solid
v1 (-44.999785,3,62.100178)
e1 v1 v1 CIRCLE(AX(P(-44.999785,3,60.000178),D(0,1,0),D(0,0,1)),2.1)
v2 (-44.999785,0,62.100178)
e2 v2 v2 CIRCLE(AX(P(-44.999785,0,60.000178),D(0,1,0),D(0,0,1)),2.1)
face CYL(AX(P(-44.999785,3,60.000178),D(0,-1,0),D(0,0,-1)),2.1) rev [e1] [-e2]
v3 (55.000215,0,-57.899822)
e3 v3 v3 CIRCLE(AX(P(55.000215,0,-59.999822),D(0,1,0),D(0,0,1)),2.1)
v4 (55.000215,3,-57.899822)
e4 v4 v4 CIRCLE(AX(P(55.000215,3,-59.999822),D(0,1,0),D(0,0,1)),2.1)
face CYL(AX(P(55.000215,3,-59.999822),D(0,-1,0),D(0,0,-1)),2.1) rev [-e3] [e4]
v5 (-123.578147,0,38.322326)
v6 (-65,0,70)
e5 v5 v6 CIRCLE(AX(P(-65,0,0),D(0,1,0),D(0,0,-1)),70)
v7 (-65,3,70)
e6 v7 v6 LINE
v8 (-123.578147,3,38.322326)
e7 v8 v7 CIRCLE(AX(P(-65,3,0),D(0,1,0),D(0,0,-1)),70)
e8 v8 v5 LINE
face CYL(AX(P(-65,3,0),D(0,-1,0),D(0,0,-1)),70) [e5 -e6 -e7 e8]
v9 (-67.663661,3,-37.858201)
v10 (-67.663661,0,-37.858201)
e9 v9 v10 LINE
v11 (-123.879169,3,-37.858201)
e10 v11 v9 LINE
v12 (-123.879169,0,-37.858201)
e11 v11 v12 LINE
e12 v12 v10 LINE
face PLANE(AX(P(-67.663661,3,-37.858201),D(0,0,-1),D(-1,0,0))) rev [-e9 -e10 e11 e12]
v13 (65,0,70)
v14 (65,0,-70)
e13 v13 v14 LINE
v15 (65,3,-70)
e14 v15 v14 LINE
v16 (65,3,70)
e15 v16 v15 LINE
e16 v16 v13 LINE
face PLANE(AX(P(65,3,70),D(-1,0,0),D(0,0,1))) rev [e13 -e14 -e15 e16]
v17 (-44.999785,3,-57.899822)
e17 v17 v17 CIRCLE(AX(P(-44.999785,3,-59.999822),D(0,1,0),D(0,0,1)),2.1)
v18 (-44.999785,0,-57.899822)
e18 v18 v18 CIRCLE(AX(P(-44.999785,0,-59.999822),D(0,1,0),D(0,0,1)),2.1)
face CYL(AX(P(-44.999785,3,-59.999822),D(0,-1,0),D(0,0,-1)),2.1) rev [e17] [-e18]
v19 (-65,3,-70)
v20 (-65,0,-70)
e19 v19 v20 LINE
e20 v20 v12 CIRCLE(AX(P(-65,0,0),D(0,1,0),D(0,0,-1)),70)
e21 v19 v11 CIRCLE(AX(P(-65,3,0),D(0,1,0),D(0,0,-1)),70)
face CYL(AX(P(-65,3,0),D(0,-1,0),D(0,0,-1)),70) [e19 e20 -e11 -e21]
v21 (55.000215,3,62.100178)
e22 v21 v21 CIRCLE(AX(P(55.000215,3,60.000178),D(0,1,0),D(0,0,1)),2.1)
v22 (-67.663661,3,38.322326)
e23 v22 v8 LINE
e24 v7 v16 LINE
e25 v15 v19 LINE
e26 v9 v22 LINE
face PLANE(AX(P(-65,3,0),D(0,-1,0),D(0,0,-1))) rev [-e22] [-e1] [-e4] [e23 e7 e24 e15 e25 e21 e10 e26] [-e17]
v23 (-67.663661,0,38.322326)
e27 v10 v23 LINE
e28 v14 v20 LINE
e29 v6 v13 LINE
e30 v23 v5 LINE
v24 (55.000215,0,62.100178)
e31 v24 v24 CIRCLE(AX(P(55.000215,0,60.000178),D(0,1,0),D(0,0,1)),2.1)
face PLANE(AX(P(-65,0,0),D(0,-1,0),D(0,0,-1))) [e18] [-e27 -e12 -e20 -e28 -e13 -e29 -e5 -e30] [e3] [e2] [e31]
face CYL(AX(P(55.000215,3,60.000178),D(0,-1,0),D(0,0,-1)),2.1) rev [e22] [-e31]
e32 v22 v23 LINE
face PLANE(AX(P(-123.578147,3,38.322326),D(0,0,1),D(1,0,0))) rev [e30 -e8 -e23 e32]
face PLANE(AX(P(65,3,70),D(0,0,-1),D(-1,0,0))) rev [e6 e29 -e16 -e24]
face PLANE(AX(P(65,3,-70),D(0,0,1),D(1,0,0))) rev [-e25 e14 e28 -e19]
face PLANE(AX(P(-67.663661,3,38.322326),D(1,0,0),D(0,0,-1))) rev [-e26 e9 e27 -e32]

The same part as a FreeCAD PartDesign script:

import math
import FreeCAD as App
import Part
import Sketcher
from FreeCAD import Vector
Q = App.Units.Quantity

doc = App.newDocument("Part")
body = doc.addObject("PartDesign::Body", "Body")

# Sketch on XZ plane
sketch1 = body.newObject("Sketcher::SketchObject", "Sketch")
sketch1.AttachmentSupport = (doc.getObject("XZ_Plane"), [""])
sketch1.MapMode = "FlatFace"
sketch1.addGeometry(Part.LineSegment(Vector(-65, 70, 0), Vector(65, 70, 0)), False)
sketch1.addGeometry(Part.LineSegment(Vector(65, 70, 0), Vector(65, -70, 0)), False)
sketch1.addGeometry(Part.LineSegment(Vector(65, -70, 0), Vector(-65, -70, 0)), False)
sketch1.addGeometry(Part.ArcOfCircle(Part.Circle(Vector(-65, 0, 0), Vector(0, 0, 1), 70), math.radians(-147), math.radians(-90)), False)
sketch1.addGeometry(Part.LineSegment(Vector(-123.9, -37.9, 0), Vector(-67.7, -37.9, 0)), False)
sketch1.addGeometry(Part.LineSegment(Vector(-67.7, -37.9, 0), Vector(-67.7, 38.3, 0)), False)
sketch1.addGeometry(Part.LineSegment(Vector(-67.7, 38.3, 0), Vector(-123.6, 38.3, 0)), False)
sketch1.addGeometry(Part.ArcOfCircle(Part.Circle(Vector(-65, 0, 0), Vector(0, 0, 1), 70), math.radians(90), math.radians(147)), False)
sketch1.addGeometry(Part.Circle(Vector(55, 60, 0), Vector(0, 0, 1), 2.1), False)
sketch1.addGeometry(Part.Circle(Vector(-45, 60, 0), Vector(0, 0, 1), 2.1), False)
sketch1.addGeometry(Part.Circle(Vector(55, -60, 0), Vector(0, 0, 1), 2.1), False)
sketch1.addGeometry(Part.Circle(Vector(-45, -60, 0), Vector(0, 0, 1), 2.1), False)
sketch1.addConstraint(Sketcher.Constraint("Coincident", 0, 2, 1, 1))
sketch1.addConstraint(Sketcher.Constraint("Coincident", 1, 2, 2, 1))
sketch1.addConstraint(Sketcher.Constraint("Tangent", 2, 2, 3, 2))
sketch1.addConstraint(Sketcher.Constraint("Coincident", 3, 1, 4, 1))
sketch1.addConstraint(Sketcher.Constraint("Coincident", 4, 2, 5, 1))
sketch1.addConstraint(Sketcher.Constraint("Coincident", 5, 2, 6, 1))
sketch1.addConstraint(Sketcher.Constraint("Coincident", 6, 2, 7, 2))
sketch1.addConstraint(Sketcher.Constraint("Tangent", 7, 1, 0, 1))
sketch1.addConstraint(Sketcher.Constraint("Horizontal", 0))
sketch1.addConstraint(Sketcher.Constraint("Vertical", 1))
sketch1.addConstraint(Sketcher.Constraint("Horizontal", 2))
sketch1.addConstraint(Sketcher.Constraint("Horizontal", 4))
sketch1.addConstraint(Sketcher.Constraint("Vertical", 5))
sketch1.addConstraint(Sketcher.Constraint("Horizontal", 6))
sketch1.addConstraint(Sketcher.Constraint("Coincident", 7, 3, 3, 3))
sketch1.addConstraint(Sketcher.Constraint("Equal", 3, 7))
sketch1.addConstraint(Sketcher.Constraint("Equal", 8, 9))
sketch1.addConstraint(Sketcher.Constraint("Equal", 9, 10))
sketch1.addConstraint(Sketcher.Constraint("Equal", 10, 11))
sketch1.addConstraint(Sketcher.Constraint("Symmetric", 0, 2, 2, 2, -1, 1))
sketch1.addConstraint(Sketcher.Constraint("Horizontal", 8, 3, 9, 3))
sketch1.addConstraint(Sketcher.Constraint("Horizontal", 10, 3, 11, 3))
sketch1.addConstraint(Sketcher.Constraint("Vertical", 8, 3, 10, 3))
sketch1.addConstraint(Sketcher.Constraint("Vertical", 9, 3, 11, 3))
sketch1.addConstraint(Sketcher.Constraint("Radius", 3, Q("70 mm")))
sketch1.addConstraint(Sketcher.Constraint("Diameter", 8, Q("4.2 mm")))
sketch1.addConstraint(Sketcher.Constraint("DistanceX", 0, 1, 0, 2, Q("130 mm")))
sketch1.addConstraint(Sketcher.Constraint("DistanceX", 9, 3, 8, 3, Q("100 mm")))
sketch1.addConstraint(Sketcher.Constraint("DistanceY", 10, 3, 8, 3, Q("120 mm")))
sketch1.addConstraint(Sketcher.Constraint("DistanceX", 4, 1, 4, 2, Q("56.215509 mm")))
sketch1.addConstraint(Sketcher.Constraint("DistanceY", 3, 1, -1, 1, Q("37.858201 mm")))
sketch1.addConstraint(Sketcher.Constraint("DistanceX", 6, 2, 6, 1, Q("55.914486 mm")))
sketch1.addConstraint(Sketcher.Constraint("DistanceY", 11, 3, 3, 1, Q("22.141621 mm")))
sketch1.addConstraint(Sketcher.Constraint("DistanceX", -1, 1, 8, 3, Q("55.000215 mm")))
pad1 = body.newObject("PartDesign::Pad", "Pad")
pad1.Profile = sketch1
pad1.Length = 3
pad1.Reversed = True

doc.recompute()
